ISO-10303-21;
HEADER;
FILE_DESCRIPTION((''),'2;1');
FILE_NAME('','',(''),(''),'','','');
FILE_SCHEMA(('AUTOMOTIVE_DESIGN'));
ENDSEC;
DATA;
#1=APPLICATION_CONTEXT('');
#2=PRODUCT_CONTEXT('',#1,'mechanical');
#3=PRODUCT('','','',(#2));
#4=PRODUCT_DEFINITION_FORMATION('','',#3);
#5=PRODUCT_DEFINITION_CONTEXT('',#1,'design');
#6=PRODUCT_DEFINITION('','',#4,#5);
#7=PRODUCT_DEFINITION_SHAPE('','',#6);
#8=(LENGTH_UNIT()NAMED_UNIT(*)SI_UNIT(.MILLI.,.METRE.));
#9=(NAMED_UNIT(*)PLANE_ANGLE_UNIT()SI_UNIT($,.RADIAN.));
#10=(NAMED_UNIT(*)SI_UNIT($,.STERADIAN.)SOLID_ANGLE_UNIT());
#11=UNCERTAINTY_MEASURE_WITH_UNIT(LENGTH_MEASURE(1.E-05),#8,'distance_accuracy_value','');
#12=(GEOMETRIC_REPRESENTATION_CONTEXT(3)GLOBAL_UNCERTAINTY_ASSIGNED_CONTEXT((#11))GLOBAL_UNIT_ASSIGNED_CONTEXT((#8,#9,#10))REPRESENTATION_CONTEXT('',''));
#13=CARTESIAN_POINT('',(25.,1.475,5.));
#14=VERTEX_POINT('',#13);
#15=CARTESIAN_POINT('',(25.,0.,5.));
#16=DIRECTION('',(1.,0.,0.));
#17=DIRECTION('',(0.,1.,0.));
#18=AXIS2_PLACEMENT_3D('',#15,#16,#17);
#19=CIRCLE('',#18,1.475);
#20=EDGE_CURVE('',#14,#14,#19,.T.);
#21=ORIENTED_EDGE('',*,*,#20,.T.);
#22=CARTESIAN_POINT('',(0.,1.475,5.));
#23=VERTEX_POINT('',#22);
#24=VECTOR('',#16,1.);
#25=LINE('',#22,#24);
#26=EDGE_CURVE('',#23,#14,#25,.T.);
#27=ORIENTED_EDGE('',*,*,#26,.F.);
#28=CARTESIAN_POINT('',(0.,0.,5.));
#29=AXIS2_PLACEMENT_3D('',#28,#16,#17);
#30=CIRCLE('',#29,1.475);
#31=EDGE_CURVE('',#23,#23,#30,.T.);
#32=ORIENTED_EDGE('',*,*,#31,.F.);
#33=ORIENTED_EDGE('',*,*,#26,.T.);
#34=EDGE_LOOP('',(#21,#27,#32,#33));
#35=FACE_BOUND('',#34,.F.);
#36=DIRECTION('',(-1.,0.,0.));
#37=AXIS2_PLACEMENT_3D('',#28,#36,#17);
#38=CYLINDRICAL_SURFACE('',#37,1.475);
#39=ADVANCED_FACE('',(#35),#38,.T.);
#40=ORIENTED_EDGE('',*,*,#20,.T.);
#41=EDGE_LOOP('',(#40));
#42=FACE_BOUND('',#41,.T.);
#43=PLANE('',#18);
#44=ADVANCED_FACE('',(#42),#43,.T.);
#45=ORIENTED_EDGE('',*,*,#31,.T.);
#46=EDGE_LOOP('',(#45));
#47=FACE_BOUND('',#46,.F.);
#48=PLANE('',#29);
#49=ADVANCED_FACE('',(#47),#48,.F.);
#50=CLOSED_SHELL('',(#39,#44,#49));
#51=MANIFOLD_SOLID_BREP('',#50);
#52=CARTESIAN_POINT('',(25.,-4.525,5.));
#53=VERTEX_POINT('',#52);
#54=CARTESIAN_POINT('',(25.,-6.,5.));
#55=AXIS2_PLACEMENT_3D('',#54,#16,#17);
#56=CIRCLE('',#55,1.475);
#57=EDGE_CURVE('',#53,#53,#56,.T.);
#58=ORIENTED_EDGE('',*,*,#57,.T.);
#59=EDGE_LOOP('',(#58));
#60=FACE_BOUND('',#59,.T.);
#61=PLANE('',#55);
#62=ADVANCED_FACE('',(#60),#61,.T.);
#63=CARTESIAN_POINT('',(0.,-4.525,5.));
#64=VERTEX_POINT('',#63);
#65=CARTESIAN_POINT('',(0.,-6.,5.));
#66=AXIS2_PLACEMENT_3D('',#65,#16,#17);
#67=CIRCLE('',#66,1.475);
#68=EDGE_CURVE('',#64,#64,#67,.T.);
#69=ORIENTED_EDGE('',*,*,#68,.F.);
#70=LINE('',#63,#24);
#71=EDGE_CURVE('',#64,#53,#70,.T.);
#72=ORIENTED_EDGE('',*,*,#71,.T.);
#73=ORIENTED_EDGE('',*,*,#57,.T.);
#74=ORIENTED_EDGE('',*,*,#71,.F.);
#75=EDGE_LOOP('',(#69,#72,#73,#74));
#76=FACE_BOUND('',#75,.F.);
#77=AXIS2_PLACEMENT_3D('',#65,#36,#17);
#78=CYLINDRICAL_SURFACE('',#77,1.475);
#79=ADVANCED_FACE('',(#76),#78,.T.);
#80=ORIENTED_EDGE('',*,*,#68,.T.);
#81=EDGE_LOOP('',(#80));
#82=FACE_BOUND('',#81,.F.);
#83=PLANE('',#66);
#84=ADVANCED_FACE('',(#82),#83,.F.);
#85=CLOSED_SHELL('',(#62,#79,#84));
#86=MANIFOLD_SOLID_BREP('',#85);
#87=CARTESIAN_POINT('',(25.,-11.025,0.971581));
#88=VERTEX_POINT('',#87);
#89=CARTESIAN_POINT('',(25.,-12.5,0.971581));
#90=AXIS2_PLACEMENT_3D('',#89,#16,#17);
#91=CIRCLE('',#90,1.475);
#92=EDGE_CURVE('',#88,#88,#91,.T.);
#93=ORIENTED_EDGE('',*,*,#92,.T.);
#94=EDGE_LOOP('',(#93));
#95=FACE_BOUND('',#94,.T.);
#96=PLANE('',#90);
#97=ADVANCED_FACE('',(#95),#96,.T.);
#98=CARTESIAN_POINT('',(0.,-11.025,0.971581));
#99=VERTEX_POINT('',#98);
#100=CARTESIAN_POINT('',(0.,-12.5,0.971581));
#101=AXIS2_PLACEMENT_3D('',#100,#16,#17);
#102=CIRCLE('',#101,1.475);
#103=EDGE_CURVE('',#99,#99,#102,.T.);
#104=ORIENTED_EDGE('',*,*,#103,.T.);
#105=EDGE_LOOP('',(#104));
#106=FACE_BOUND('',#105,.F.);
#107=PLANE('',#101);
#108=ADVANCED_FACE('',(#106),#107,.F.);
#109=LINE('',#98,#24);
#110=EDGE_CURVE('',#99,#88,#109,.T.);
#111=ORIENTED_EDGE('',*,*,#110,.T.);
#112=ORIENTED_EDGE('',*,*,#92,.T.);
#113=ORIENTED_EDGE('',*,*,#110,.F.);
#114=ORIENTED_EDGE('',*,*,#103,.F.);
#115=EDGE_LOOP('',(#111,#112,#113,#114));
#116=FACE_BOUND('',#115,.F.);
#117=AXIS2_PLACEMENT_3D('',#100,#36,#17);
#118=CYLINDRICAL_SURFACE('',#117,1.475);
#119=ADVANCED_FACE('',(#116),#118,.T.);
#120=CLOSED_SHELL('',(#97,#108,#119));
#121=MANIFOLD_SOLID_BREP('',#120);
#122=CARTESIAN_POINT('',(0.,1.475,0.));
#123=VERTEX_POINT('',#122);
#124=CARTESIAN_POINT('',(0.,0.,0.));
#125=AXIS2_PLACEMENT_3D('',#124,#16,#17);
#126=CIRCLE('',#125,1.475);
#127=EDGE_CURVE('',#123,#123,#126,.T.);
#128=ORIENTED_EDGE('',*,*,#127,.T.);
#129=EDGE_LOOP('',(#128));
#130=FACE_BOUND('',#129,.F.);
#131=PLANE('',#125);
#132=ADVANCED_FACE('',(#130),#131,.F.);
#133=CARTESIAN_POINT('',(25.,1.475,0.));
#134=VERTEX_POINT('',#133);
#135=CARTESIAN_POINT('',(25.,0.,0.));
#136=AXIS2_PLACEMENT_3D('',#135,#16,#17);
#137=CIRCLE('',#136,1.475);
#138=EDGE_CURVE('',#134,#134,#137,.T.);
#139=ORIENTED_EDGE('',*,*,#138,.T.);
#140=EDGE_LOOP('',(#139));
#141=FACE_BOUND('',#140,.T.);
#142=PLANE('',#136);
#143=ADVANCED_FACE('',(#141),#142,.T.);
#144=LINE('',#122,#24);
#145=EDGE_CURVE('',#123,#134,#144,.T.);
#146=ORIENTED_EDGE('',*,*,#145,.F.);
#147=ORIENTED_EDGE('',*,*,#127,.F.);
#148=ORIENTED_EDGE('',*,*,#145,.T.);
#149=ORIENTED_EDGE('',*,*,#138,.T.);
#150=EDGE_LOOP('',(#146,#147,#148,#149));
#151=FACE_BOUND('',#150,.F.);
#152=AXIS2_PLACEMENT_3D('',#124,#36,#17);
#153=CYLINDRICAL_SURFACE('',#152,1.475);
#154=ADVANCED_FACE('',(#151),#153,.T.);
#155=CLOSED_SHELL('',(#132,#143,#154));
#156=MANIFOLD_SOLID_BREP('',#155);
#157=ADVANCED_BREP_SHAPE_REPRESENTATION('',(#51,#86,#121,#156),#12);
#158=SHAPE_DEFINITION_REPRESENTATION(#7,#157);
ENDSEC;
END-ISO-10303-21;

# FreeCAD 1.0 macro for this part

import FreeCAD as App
import Part
import Sketcher
Q = App.Units.Quantity

doc = App.newDocument("Part")
params = doc.addObject("Spreadsheet::Sheet", "Params")
for row, (alias, value) in enumerate([
    ("sketch1_diameter", "2.95 mm"),
    ("pad1_length", "25 mm"),
], start=1):
    params.set(f"A{row}", alias)
    params.set(f"B{row}", "=" + value)
    params.setAlias(f"B{row}", alias)

body = doc.addObject("PartDesign::Body", "Body")
body.AllowCompound = True

sketch1 = body.newObject("Sketcher::SketchObject", "Sketch")
sketch1.AttachmentSupport = (doc.getObject("YZ_Plane"), [""])
sketch1.MapMode = "FlatFace"
sketch1.addGeometry(Part.Circle(App.Vector(-12.5, 1, 0), App.Vector(0, 0, 1), 1.5), False)
sketch1.addGeometry(Part.Circle(App.Vector(-6, 5, 0), App.Vector(0, 0, 1), 1.5), False)
sketch1.addGeometry(Part.Circle(App.Vector(0, 5, 0), App.Vector(0, 0, 1), 1.5), False)
sketch1.addGeometry(Part.Circle(App.Vector(0, 0, 0), App.Vector(0, 0, 1), 1.5), False)
sketch1.addConstraint(Sketcher.Constraint("Coincident", 3, 3, -1, 1))
sketch1.addConstraint(Sketcher.Constraint("Equal", 0, 1))
sketch1.addConstraint(Sketcher.Constraint("Equal", 1, 2))
sketch1.addConstraint(Sketcher.Constraint("Equal", 2, 3))
sketch1.addConstraint(Sketcher.Constraint("PointOnObject", 2, 3, -2))
sketch1.addConstraint(Sketcher.Constraint("Horizontal", 1, 3, 2, 3))
sketch1.addConstraint(Sketcher.Constraint("Diameter", 0, Q("2.95 mm")))
sketch1.addConstraint(Sketcher.Constraint("DistanceX", 1, 3, -1, 1, Q("6 mm")))
sketch1.addConstraint(Sketcher.Constraint("DistanceY", -1, 1, 1, 3, Q("5 mm")))
sketch1.addConstraint(Sketcher.Constraint("DistanceX", 0, 3, -1, 1, Q("12.5 mm")))
sketch1.addConstraint(Sketcher.Constraint("DistanceY", -1, 1, 0, 3, Q("0.971581 mm")))
sketch1.setExpression("Constraints[6]", "Params.sketch1_diameter")
pad1 = body.newObject("PartDesign::Pad", "Pad")
pad1.Profile = sketch1
pad1.setExpression("Length", "Params.pad1_length")

doc.recompute()
